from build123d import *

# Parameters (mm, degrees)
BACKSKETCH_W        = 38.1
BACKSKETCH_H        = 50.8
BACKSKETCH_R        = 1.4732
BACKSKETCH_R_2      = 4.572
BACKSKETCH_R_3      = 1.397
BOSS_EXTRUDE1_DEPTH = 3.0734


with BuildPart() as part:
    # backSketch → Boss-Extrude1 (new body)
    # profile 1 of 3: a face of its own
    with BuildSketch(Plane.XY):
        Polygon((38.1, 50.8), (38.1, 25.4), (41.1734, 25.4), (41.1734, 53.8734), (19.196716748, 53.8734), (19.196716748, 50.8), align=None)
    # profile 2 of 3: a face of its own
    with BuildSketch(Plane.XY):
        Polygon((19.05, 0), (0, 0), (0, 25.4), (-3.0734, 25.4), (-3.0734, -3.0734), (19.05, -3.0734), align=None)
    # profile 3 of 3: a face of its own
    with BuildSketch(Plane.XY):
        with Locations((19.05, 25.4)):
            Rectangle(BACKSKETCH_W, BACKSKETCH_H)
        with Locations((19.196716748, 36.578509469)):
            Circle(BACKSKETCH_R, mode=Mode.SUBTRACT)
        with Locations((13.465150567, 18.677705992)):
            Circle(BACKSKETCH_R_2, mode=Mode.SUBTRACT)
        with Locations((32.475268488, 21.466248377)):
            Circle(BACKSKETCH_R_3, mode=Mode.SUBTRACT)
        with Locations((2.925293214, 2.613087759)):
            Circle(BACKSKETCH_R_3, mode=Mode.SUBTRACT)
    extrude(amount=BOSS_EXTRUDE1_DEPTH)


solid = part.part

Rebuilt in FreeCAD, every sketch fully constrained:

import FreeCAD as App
import Part
import Sketcher

V = App.Vector
Q = App.Units.Quantity


def add_polygon(sketch, points):
    """Adds a closed chain of lines whose ends are joined by coincident constraints."""
    first, n = sketch.GeometryCount, len(points)
    for a, b in zip(points, points[1:] + points[:1]):
        sketch.addGeometry(Part.LineSegment(App.Vector(*a, 0), App.Vector(*b, 0)), False)
    for i in range(n):
        sketch.addConstraint(Sketcher.Constraint("Coincident", first + i, 2, first + (i + 1) % n, 1))

doc = App.newDocument("Part")
params = doc.addObject("Spreadsheet::Sheet", "Params")
for row, (alias, value) in enumerate([
    ("sketch1_diameter", "0.11 in"),
    ("sketch1_diameter2", "0.36 in"),
    ("sketch1_height", "1 in"),
    ("sketch1_diameter3", "0.116 in"),
    ("sketch1_width", "0.75 in"),
    ("pad1_length", "0.121 in"),
], start=1):
    params.set(f"A{row}", alias)
    params.set(f"B{row}", "=" + value)
    params.setAlias(f"B{row}", alias)

body = doc.addObject("PartDesign::Body", "Body")

# Sketch on XY plane
sketch1 = body.newObject("Sketcher::SketchObject", "Sketch")
sketch1.AttachmentSupport = (doc.getObject("XY_Plane"), [""])
sketch1.MapMode = "FlatFace"
add_polygon(sketch1, [(38.1, 25.4), (41.1734, 25.4), (41.1734, 53.8734), (19.196717, 53.8734), (19.196717, 50.8), (0, 50.8), (0, 25.4), (-3.0734, 25.4), (-3.0734, -3.0734), (19.05, -3.0734), (19.05, 0), (38.1, 0)])  # lines 0-11
sketch1.addGeometry(Part.Circle(V(32.475268, 21.466248, 0), V(0, 0, 1), 1.397), False)  # 12
sketch1.addGeometry(Part.Circle(V(19.196717, 36.578509, 0), V(0, 0, 1), 1.4732), False)  # 13
sketch1.addGeometry(Part.Circle(V(2.925293, 2.613088, 0), V(0, 0, 1), 1.397), False)  # 14
sketch1.addGeometry(Part.Circle(V(13.465151, 18.677706, 0), V(0, 0, 1), 4.572), False)  # 15
sketch1.addConstraint([
    Sketcher.Constraint("Horizontal", 0),
    Sketcher.Constraint("Vertical", 1),
    Sketcher.Constraint("Horizontal", 2),
    Sketcher.Constraint("Vertical", 3),
    Sketcher.Constraint("Horizontal", 4),
    Sketcher.Constraint("Vertical", 5),
    Sketcher.Constraint("Horizontal", 6),
    Sketcher.Constraint("Vertical", 7),
    Sketcher.Constraint("Horizontal", 8),
    Sketcher.Constraint("Vertical", 9),
    Sketcher.Constraint("Horizontal", 10),
    Sketcher.Constraint("Vertical", 11),
    Sketcher.Constraint("Equal", 12, 14),
    Sketcher.Constraint("PointOnObject", 4, 2, -2),
    Sketcher.Constraint("PointOnObject", 9, 2, -1),
    Sketcher.Constraint("Horizontal", 0, 2, 5, 2),
    Sketcher.Constraint("Vertical", 13, 3, 2, 2),
    Sketcher.Constraint("Equal", 0, 6),
    Sketcher.Constraint("Equal", 6, 3),
    Sketcher.Constraint("Equal", 1, 7),
    Sketcher.Constraint("Equal", 3, 9),
    Sketcher.Constraint("Diameter", 12, Q("0.11 in")),
    Sketcher.Constraint("Diameter", 15, Q("0.36 in")),
    Sketcher.Constraint("DistanceY", 5, 2, 5, 1, Q("1 in")),
    Sketcher.Constraint("Diameter", 13, Q("0.116 in")),
    Sketcher.Constraint("DistanceX", 10, 1, 10, 2, Q("0.75 in")),
    Sketcher.Constraint("DistanceX", -1, 1, 10, 2, Q("1.5 in")),
    Sketcher.Constraint("DistanceX", 0, 1, 0, 2, Q("0.121 in")),
    Sketcher.Constraint("DistanceX", 2, 2, 2, 1, Q("21.976683 mm")),
    Sketcher.Constraint("DistanceX", -1, 1, 12, 3, Q("32.475268 mm")),
    Sketcher.Constraint("DistanceY", -1, 1, 12, 3, Q("21.466248 mm")),
    Sketcher.Constraint("DistanceY", -1, 1, 13, 3, Q("36.578509 mm")),
    Sketcher.Constraint("DistanceX", -1, 1, 15, 3, Q("13.465151 mm")),
    Sketcher.Constraint("DistanceY", 14, 3, 12, 3, Q("18.853161 mm")),
    Sketcher.Constraint("DistanceY", 14, 3, 15, 3, Q("16.064618 mm")),
    Sketcher.Constraint("DistanceX", -1, 1, 14, 3, Q("2.925293 mm")),
])
sketch1.setExpression("Constraints[33]", "Params.sketch1_diameter")
sketch1.setExpression("Constraints[34]", "Params.sketch1_diameter2")
sketch1.setExpression("Constraints[35]", "Params.sketch1_height")
sketch1.setExpression("Constraints[36]", "Params.sketch1_diameter3")
sketch1.setExpression("Constraints[37]", "Params.sketch1_width")
pad1 = body.newObject("PartDesign::Pad", "Pad")
pad1.Profile = sketch1
pad1.setExpression("Length", "Params.pad1_length")

doc.recompute()
